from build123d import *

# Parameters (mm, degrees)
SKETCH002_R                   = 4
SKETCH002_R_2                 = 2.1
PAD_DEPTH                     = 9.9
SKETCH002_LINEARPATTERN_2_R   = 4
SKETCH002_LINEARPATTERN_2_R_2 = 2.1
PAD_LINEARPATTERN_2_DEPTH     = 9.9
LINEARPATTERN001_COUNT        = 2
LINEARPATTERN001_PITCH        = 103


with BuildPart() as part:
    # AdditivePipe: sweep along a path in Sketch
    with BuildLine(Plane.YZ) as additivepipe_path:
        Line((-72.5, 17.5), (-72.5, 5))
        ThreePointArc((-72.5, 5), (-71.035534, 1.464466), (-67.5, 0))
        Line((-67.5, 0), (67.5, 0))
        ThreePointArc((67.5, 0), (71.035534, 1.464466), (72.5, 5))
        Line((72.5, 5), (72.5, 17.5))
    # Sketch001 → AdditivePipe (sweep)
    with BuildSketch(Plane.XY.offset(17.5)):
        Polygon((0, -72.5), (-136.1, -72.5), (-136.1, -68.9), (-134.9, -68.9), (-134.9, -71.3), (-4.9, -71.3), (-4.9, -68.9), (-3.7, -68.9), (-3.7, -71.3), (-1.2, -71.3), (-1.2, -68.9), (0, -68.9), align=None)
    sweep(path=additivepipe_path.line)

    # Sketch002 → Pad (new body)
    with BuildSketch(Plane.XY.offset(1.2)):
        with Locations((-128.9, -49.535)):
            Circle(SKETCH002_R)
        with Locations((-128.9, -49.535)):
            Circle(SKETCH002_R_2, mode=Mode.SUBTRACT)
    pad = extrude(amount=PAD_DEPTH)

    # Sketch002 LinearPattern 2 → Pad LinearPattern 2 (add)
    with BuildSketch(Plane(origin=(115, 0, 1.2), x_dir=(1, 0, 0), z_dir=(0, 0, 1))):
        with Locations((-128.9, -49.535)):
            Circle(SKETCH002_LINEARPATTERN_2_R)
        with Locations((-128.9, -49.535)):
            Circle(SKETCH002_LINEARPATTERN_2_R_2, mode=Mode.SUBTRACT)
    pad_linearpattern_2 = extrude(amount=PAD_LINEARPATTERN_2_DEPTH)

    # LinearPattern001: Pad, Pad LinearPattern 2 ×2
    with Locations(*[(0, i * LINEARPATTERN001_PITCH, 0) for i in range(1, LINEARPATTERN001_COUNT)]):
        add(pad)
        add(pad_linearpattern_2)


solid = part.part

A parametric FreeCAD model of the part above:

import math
import FreeCAD as App
import Part
import Sketcher

V = App.Vector
Q = App.Units.Quantity

doc = App.newDocument("Part")
body = doc.addObject("PartDesign::Body", "Body")

sketch1 = doc.addObject("Sketcher::SketchObject", "Sketch")
body.addObject(sketch1)
sketch1.AttachmentSupport = (doc.XY_Plane, [""])
sketch1.MapMode = "FlatFace"
sketch1.AttachmentOffset = App.Placement(V(0, 0, 17.5), App.Rotation())
sketch1.addGeometry([
    Part.LineSegment(V(-136.1, -72.5, 0), V(0, -72.5, 0)),
    Part.LineSegment(V(0, -72.5, 0), V(0, -68.9, 0)),
    Part.LineSegment(V(0, -68.9, 0), V(-1.2, -68.9, 0)),
    Part.LineSegment(V(-1.2, -68.9, 0), V(-1.2, -71.3, 0)),
    Part.LineSegment(V(-1.2, -71.3, 0), V(-3.7, -71.3, 0)),
    Part.LineSegment(V(-3.7, -71.3, 0), V(-3.7, -68.9, 0)),
    Part.LineSegment(V(-3.7, -68.9, 0), V(-4.9, -68.9, 0)),
    Part.LineSegment(V(-4.9, -68.9, 0), V(-4.9, -71.3, 0)),
    Part.LineSegment(V(-4.9, -71.3, 0), V(-134.9, -71.3, 0)),
    Part.LineSegment(V(-134.9, -71.3, 0), V(-134.9, -68.9, 0)),
    Part.LineSegment(V(-134.9, -68.9, 0), V(-136.1, -68.9, 0)),
    Part.LineSegment(V(-136.1, -68.9, 0), V(-136.1, -72.5, 0)),
], False)
sketch1.addConstraint([
    Sketcher.Constraint("Coincident", 0, 2, 1, 1),
    Sketcher.Constraint("Coincident", 1, 2, 2, 1),
    Sketcher.Constraint("Coincident", 2, 2, 3, 1),
    Sketcher.Constraint("Coincident", 3, 2, 4, 1),
    Sketcher.Constraint("Coincident", 4, 2, 5, 1),
    Sketcher.Constraint("Coincident", 5, 2, 6, 1),
    Sketcher.Constraint("Coincident", 6, 2, 7, 1),
    Sketcher.Constraint("Coincident", 7, 2, 8, 1),
    Sketcher.Constraint("Coincident", 8, 2, 9, 1),
    Sketcher.Constraint("Coincident", 9, 2, 10, 1),
    Sketcher.Constraint("Coincident", 10, 2, 11, 1),
    Sketcher.Constraint("Coincident", 11, 2, 0, 1),
    Sketcher.Constraint("Horizontal", 0),
    Sketcher.Constraint("Vertical", 1),
    Sketcher.Constraint("Horizontal", 2),
    Sketcher.Constraint("Vertical", 3),
    Sketcher.Constraint("Horizontal", 4),
    Sketcher.Constraint("Vertical", 5),
    Sketcher.Constraint("Horizontal", 6),
    Sketcher.Constraint("Vertical", 7),
    Sketcher.Constraint("Horizontal", 8),
    Sketcher.Constraint("Vertical", 9),
    Sketcher.Constraint("Horizontal", 10),
    Sketcher.Constraint("Vertical", 11),
    Sketcher.Constraint("PointOnObject", 0, 2, -2),
    Sketcher.Constraint("Horizontal", 2, 2, 5, 2),
    Sketcher.Constraint("Horizontal", 4, 2, 7, 2),
    Sketcher.Constraint("Horizontal", 6, 2, 9, 2),
    Sketcher.Constraint("Equal", 2, 6),
    Sketcher.Constraint("Equal", 6, 10),
    Sketcher.Constraint("DistanceX", 8, 2, 8, 1, Q("130 mm")),
    Sketcher.Constraint("DistanceX", 0, 1, 0, 2, Q("136.1 mm")),
    Sketcher.Constraint("DistanceX", 2, 2, 2, 1, Q("1.2 mm")),
    Sketcher.Constraint("DistanceY", 1, 1, 1, 2, Q("3.6 mm")),
    Sketcher.Constraint("DistanceY", 3, 2, 3, 1, Q("2.4 mm")),
    Sketcher.Constraint("DistanceY", 0, 2, -1, 1, Q("72.5 mm")),
])

sketch2 = doc.addObject("Sketcher::SketchObject", "Sketch001")
body.addObject(sketch2)
sketch2.AttachmentSupport = (doc.YZ_Plane, [""])
sketch2.MapMode = "FlatFace"
sketch2.addGeometry([
    Part.LineSegment(V(-72.5, 17.5, 0), V(-72.5, 5, 0)),
    Part.ArcOfCircle(Part.Circle(V(-67.5, 5, 0), V(0, 0, 1), 5), math.radians(180), math.radians(270)),
    Part.LineSegment(V(-67.5, 0, 0), V(67.5, 0, 0)),
    Part.ArcOfCircle(Part.Circle(V(67.5, 5, 0), V(0, 0, 1), 5), math.radians(-90), math.radians(0)),
    Part.LineSegment(V(72.5, 5, 0), V(72.5, 17.5, 0)),
], False)
sketch2.addConstraint([
    Sketcher.Constraint("Tangent", 0, 2, 1, 1),
    Sketcher.Constraint("Tangent", 1, 2, 2, 1),
    Sketcher.Constraint("Tangent", 2, 2, 3, 1),
    Sketcher.Constraint("Tangent", 3, 2, 4, 1),
    Sketcher.Constraint("Vertical", 0),
    Sketcher.Constraint("Horizontal", 2),
    Sketcher.Constraint("Vertical", 4),
    Sketcher.Constraint("Equal", 1, 3),
    Sketcher.Constraint("Symmetric", 1, 2, 2, 2, -1, 1),
    Sketcher.Constraint("Horizontal", 0, 1, 4, 2),
    Sketcher.Constraint("Radius", 1, Q("5 mm")),
    Sketcher.Constraint("DistanceX", 2, 1, 2, 2, Q("135 mm")),
    Sketcher.Constraint("DistanceY", 0, 2, 0, 1, Q("12.5 mm")),
])
doc.recompute()

additivepipe = doc.addObject("PartDesign::AdditivePipe", "AdditivePipe")
body.addObject(additivepipe)
additivepipe.Profile = sketch1
additivepipe.Spine = (sketch2, ["Edge1", "Edge2", "Edge3", "Edge4", "Edge5"])

sketch3 = doc.addObject("Sketcher::SketchObject", "Sketch002")
body.addObject(sketch3)
sketch3.AttachmentSupport = (doc.XY_Plane, [""])
sketch3.MapMode = "FlatFace"
sketch3.AttachmentOffset = App.Placement(V(0, 0, 1.2), App.Rotation())
sketch3.addGeometry([
    Part.Circle(V(-128.9, -49.5, 0), V(0, 0, 1), 4),
    Part.Circle(V(-128.9, -49.5, 0), V(0, 0, 1), 2.1),
], False)
sketch3.addConstraint([
    Sketcher.Constraint("Coincident", 1, 3, 0, 3),
    Sketcher.Constraint("Diameter", 0, Q("8 mm")),
    Sketcher.Constraint("Diameter", 1, Q("4.2 mm")),
    Sketcher.Constraint("DistanceX", 0, 3, -1, 1, Q("128.9 mm")),
    Sketcher.Constraint("DistanceY", 0, 3, -1, 1, Q("49.535 mm")),
])
pad1 = doc.addObject("PartDesign::Pad", "Pad")
body.addObject(pad1)
pad1.Profile = sketch3
pad1.Length = 9.9

sketch4 = doc.addObject("Sketcher::SketchObject", "Sketch003")
body.addObject(sketch4)
sketch4.AttachmentSupport = (doc.XY_Plane, [""])
sketch4.MapMode = "FlatFace"
sketch4.AttachmentOffset = App.Placement(V(0, 0, 1.2), App.Rotation())
sketch4.addGeometry([
    Part.Circle(V(-13.9, -49.5, 0), V(0, 0, 1), 4),
    Part.Circle(V(-13.9, -49.5, 0), V(0, 0, 1), 2.1),
], False)
sketch4.addConstraint([
    Sketcher.Constraint("Coincident", 1, 3, 0, 3),
    Sketcher.Constraint("Diameter", 0, Q("8 mm")),
    Sketcher.Constraint("Diameter", 1, Q("4.2 mm")),
    Sketcher.Constraint("DistanceX", 0, 3, -1, 1, Q("13.9 mm")),
    Sketcher.Constraint("DistanceY", 0, 3, -1, 1, Q("49.535 mm")),
])
pad2 = doc.addObject("PartDesign::Pad", "Pad001")
body.addObject(pad2)
pad2.Profile = sketch4
pad2.Length = 9.9
doc.recompute()

linearpattern = doc.addObject("PartDesign::LinearPattern", "LinearPattern")
body.addObject(linearpattern)
linearpattern.Originals = [pad1, pad2]
linearpattern.Direction = (doc.Y_Axis, [""])
linearpattern.Mode = "offset"
linearpattern.Offset = 103
linearpattern.Occurrences = 2
body.Tip = linearpattern

doc.recompute()
